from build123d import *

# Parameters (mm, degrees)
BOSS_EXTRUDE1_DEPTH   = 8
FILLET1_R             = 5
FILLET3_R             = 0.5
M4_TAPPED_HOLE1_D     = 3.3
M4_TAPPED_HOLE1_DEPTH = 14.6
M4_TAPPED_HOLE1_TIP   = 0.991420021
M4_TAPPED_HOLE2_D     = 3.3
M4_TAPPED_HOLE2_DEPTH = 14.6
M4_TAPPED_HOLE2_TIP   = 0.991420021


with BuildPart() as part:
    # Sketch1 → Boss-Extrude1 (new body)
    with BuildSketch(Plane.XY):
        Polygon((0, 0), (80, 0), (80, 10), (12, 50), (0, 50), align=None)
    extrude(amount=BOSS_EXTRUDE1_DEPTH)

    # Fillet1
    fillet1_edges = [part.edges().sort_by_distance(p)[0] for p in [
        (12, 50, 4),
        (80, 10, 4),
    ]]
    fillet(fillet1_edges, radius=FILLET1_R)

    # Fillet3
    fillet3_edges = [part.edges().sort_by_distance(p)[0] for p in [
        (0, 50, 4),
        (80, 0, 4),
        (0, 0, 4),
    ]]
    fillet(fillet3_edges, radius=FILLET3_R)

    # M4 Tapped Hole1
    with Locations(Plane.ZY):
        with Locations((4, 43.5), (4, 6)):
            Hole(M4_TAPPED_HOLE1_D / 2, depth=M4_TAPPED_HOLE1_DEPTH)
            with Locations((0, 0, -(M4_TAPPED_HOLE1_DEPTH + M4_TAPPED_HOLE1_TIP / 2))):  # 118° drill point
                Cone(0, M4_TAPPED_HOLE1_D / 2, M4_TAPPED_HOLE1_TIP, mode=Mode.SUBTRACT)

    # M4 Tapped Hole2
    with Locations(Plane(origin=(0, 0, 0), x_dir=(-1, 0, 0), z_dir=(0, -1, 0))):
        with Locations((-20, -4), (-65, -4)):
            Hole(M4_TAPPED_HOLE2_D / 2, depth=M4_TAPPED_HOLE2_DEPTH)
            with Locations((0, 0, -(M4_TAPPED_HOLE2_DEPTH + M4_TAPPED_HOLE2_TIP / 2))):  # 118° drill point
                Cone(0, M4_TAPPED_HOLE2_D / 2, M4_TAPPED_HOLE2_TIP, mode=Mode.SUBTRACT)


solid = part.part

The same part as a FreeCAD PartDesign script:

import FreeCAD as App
import Part
import Sketcher

V = App.Vector
Q = App.Units.Quantity


def edges_at(feature, points):
    """Names of the edges that pass closest to the given points."""
    edges = feature.Shape.Edges
    near = lambda p: min(range(len(edges)), key=lambda i: edges[i].distToShape(Part.Vertex(*p))[0])
    return sorted({f"Edge{near(p) + 1}" for p in points})


def add_polygon(sketch, points):
    """Adds a closed chain of lines whose ends are joined by coincident constraints."""
    first, n = sketch.GeometryCount, len(points)
    for a, b in zip(points, points[1:] + points[:1]):
        sketch.addGeometry(Part.LineSegment(App.Vector(*a, 0), App.Vector(*b, 0)), False)
    for i in range(n):
        sketch.addConstraint(Sketcher.Constraint("Coincident", first + i, 2, first + (i + 1) % n, 1))

doc = App.newDocument("Part")
body = doc.addObject("PartDesign::Body", "Body")

sketch1 = doc.addObject("Sketcher::SketchObject", "Sketch")
body.addObject(sketch1)
sketch1.AttachmentSupport = (doc.XY_Plane, [""])
sketch1.MapMode = "FlatFace"
add_polygon(sketch1, [(0, 0), (80, 0), (80, 10), (12, 50), (0, 50)])
sketch1.addConstraint(Sketcher.Constraint("Horizontal", 0))
sketch1.addConstraint(Sketcher.Constraint("Vertical", 1))
sketch1.addConstraint(Sketcher.Constraint("Horizontal", 3))
sketch1.addConstraint(Sketcher.Constraint("Vertical", 4))
sketch1.addConstraint(Sketcher.Constraint("Coincident", 4, 2, -1, 1))
sketch1.addConstraint(Sketcher.Constraint("DistanceX", 0, 1, 0, 2, Q("80 mm")))
sketch1.addConstraint(Sketcher.Constraint("DistanceX", 3, 2, 3, 1, Q("12 mm")))
sketch1.addConstraint(Sketcher.Constraint("DistanceY", 1, 1, 1, 2, Q("10 mm")))
sketch1.addConstraint(Sketcher.Constraint("DistanceY", 4, 2, 4, 1, Q("50 mm")))
pad1 = doc.addObject("PartDesign::Pad", "Pad")
body.addObject(pad1)
pad1.Profile = sketch1
pad1.Length = 8
doc.recompute()

fillet = doc.addObject("PartDesign::Fillet", "Fillet")
body.addObject(fillet)
fillet.Base = (pad1, edges_at(pad1, [(12, 50, 4), (80, 10, 4)]))
fillet.Radius = 5
doc.recompute()

fillet2 = doc.addObject("PartDesign::Fillet", "Fillet001")
body.addObject(fillet2)
fillet2.Base = (fillet, edges_at(fillet, [(0, 50, 4), (80, 0, 4), (0, 0, 4)]))
fillet2.Radius = 0.5

sketch2 = doc.addObject("Sketcher::SketchObject", "Sketch001")
body.addObject(sketch2)
sketch2.AttachmentSupport = (doc.YZ_Plane, [""])
sketch2.MapMode = "FlatFace"
sketch2.addGeometry(Part.Circle(V(43.5, 4, 0), V(0, 0, 1), 1.6), False)
sketch2.addGeometry(Part.Circle(V(6, 4, 0), V(0, 0, 1), 1.6), False)
sketch2.addConstraint(Sketcher.Constraint("Equal", 0, 1))
sketch2.addConstraint(Sketcher.Constraint("Horizontal", 0, 3, 1, 3))
sketch2.addConstraint(Sketcher.Constraint("Diameter", 0, Q("3.3 mm")))
sketch2.addConstraint(Sketcher.Constraint("DistanceY", -1, 1, 0, 3, Q("4 mm")))
sketch2.addConstraint(Sketcher.Constraint("DistanceX", -1, 1, 1, 3, Q("6 mm")))
sketch2.addConstraint(Sketcher.Constraint("DistanceX", -1, 1, 0, 3, Q("43.5 mm")))
doc.recompute()
hole = doc.addObject("PartDesign::Hole", "Hole")
body.addObject(hole)
hole.Profile = sketch2
hole.ThreadType = "None"
hole.Diameter = 3.3
hole.DepthType = "Dimension"
hole.Depth = 14.6
hole.DrillPoint = "Angled"
hole.DrillPointAngle = 118
hole.Reversed = True

sketch3 = doc.addObject("Sketcher::SketchObject", "Sketch002")
body.addObject(sketch3)
sketch3.AttachmentSupport = (doc.XZ_Plane, [""])
sketch3.MapMode = "FlatFace"
sketch3.addGeometry(Part.Circle(V(20, 4, 0), V(0, 0, 1), 1.6), False)
sketch3.addGeometry(Part.Circle(V(65, 4, 0), V(0, 0, 1), 1.6), False)
sketch3.addConstraint(Sketcher.Constraint("Equal", 0, 1))
sketch3.addConstraint(Sketcher.Constraint("Horizontal", 0, 3, 1, 3))
sketch3.addConstraint(Sketcher.Constraint("Diameter", 0, Q("3.3 mm")))
sketch3.addConstraint(Sketcher.Constraint("DistanceX", -1, 1, 0, 3, Q("20 mm")))
sketch3.addConstraint(Sketcher.Constraint("DistanceY", -1, 1, 0, 3, Q("4 mm")))
sketch3.addConstraint(Sketcher.Constraint("DistanceX", -1, 1, 1, 3, Q("65 mm")))
doc.recompute()
hole2 = doc.addObject("PartDesign::Hole", "Hole001")
body.addObject(hole2)
hole2.Profile = sketch3
hole2.ThreadType = "None"
hole2.Diameter = 3.3
hole2.DepthType = "Dimension"
hole2.Depth = 14.6
hole2.DrillPoint = "Angled"
hole2.DrillPointAngle = 118

doc.recompute()
